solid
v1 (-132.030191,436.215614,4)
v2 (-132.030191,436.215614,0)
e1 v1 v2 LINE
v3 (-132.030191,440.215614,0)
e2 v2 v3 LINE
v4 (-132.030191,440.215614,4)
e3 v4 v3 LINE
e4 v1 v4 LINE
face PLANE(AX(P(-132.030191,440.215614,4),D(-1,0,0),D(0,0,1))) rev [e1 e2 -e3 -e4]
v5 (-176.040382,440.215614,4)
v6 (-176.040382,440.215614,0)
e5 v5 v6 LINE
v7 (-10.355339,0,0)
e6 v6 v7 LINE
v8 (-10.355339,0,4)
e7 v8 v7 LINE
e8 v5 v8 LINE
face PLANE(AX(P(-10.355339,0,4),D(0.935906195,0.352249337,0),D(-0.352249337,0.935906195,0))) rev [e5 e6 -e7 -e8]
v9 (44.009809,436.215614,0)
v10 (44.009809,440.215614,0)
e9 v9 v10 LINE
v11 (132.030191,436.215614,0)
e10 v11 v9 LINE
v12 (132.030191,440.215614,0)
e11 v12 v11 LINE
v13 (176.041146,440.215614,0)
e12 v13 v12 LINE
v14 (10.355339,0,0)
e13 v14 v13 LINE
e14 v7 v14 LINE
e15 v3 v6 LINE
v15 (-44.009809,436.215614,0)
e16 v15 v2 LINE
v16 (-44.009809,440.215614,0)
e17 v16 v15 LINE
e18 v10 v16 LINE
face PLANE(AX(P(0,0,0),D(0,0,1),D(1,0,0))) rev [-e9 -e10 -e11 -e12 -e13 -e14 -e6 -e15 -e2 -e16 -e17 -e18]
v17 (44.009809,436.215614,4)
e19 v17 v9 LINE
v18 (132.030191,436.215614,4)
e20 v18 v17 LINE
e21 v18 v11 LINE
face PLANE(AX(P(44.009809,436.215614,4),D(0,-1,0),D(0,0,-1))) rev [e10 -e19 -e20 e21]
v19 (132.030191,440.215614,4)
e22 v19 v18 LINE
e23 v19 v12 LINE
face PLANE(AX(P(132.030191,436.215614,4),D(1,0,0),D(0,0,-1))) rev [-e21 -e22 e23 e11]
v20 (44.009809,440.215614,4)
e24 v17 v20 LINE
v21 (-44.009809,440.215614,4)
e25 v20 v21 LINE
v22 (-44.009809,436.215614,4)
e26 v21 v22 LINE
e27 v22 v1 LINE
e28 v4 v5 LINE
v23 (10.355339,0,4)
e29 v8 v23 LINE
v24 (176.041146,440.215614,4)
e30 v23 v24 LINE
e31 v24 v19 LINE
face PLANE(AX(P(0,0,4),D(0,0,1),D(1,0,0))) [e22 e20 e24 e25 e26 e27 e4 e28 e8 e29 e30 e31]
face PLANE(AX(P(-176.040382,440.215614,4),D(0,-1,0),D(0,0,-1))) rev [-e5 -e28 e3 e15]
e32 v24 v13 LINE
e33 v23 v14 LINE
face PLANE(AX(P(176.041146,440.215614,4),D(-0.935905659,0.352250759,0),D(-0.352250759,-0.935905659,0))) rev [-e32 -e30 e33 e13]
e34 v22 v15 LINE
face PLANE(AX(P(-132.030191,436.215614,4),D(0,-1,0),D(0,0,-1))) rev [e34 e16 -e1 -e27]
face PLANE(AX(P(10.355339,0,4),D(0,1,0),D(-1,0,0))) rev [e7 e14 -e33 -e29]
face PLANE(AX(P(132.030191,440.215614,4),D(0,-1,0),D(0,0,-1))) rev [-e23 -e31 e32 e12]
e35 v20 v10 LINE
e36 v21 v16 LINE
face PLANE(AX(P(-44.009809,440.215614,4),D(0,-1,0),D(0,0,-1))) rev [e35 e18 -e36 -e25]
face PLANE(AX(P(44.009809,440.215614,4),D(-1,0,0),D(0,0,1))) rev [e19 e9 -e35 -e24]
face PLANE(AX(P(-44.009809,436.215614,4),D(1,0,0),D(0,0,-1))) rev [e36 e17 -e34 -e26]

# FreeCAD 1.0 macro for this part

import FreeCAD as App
import Part
import Sketcher

V = App.Vector


def add_polygon(sketch, points):
    """Adds a closed chain of lines whose ends are joined by coincident constraints."""
    first, n = sketch.GeometryCount, len(points)
    for a, b in zip(points, points[1:] + points[:1]):
        sketch.addGeometry(Part.LineSegment(App.Vector(*a, 0), App.Vector(*b, 0)), False)
    for i in range(n):
        sketch.addConstraint(Sketcher.Constraint("Coincident", first + i, 2, first + (i + 1) % n, 1))

doc = App.newDocument("Part")
params = doc.addObject("Spreadsheet::Sheet", "Params")
for row, (alias, value) in enumerate([
    ("sketch1_height", "4 mm"),
    ("pad1_length", "4 mm"),
], start=1):
    params.set(f"A{row}", alias)
    params.set(f"B{row}", "=" + value)
    params.setAlias(f"B{row}", alias)

body = doc.addObject("PartDesign::Body", "Body")

# Sketch on XY plane
sketch1 = body.newObject("Sketcher::SketchObject", "Sketch")
sketch1.AttachmentSupport = (doc.getObject("XY_Plane"), [""])
sketch1.MapMode = "FlatFace"
add_polygon(sketch1, [(10.4, 0), (176, 440.2), (132, 440.2), (132, 436.2), (44, 436.2), (44, 440.2), (-44, 440.2), (-44, 436.2), (-132, 436.2), (-132, 440.2), (-176, 440.2), (-10.4, 0)])  # lines 0-11
sketch1.addConstraint(Sketcher.Constraint("Horizontal", 1))
sketch1.addConstraint(Sketcher.Constraint("Vertical", 2))
sketch1.addConstraint(Sketcher.Constraint("Horizontal", 3))
sketch1.addConstraint(Sketcher.Constraint("Vertical", 4))
sketch1.addConstraint(Sketcher.Constraint("Horizontal", 5))
sketch1.addConstraint(Sketcher.Constraint("Vertical", 6))
sketch1.addConstraint(Sketcher.Constraint("Horizontal", 7))
sketch1.addConstraint(Sketcher.Constraint("Vertical", 8))
sketch1.addConstraint(Sketcher.Constraint("Horizontal", 9))
sketch1.addConstraint(Sketcher.Constraint("Horizontal", 11))
sketch1.addConstraint(Sketcher.Constraint("Symmetric", 10, 2, 11, 2, -1, 1))
sketch1.addConstraint(Sketcher.Constraint("Symmetric", 3, 2, 6, 2, -2))
sketch1.addConstraint(Sketcher.Constraint("Symmetric", 1, 2, 8, 2, -2))
sketch1.addConstraint(Sketcher.Constraint("Horizontal", 1, 2, 4, 2))
sketch1.addConstraint(Sketcher.Constraint("DistanceY", 2, 2, 2, 1, 4.0))
sketch1.addConstraint(Sketcher.Constraint("DistanceX", 5, 2, 1, 2, 176.04))
sketch1.addConstraint(Sketcher.Constraint("DistanceX", 9, 2, 9, 1, 44.010191))
sketch1.addConstraint(Sketcher.Constraint("DistanceX", 11, 1, 11, 2, 20.710678))
sketch1.addConstraint(Sketcher.Constraint("DistanceX", 1, 2, 1, 1, 44.010955))
sketch1.addConstraint(Sketcher.Constraint("DistanceX", 3, 2, 3, 1, 88.020382))
sketch1.addConstraint(Sketcher.Constraint("Distance", 0, 470.363236))
sketch1.setExpression("Constraints[26]", "Params.sketch1_height")
pad1 = body.newObject("PartDesign::Pad", "Pad")
pad1.Profile = sketch1
pad1.setExpression("Length", "Params.pad1_length")

doc.recompute()
